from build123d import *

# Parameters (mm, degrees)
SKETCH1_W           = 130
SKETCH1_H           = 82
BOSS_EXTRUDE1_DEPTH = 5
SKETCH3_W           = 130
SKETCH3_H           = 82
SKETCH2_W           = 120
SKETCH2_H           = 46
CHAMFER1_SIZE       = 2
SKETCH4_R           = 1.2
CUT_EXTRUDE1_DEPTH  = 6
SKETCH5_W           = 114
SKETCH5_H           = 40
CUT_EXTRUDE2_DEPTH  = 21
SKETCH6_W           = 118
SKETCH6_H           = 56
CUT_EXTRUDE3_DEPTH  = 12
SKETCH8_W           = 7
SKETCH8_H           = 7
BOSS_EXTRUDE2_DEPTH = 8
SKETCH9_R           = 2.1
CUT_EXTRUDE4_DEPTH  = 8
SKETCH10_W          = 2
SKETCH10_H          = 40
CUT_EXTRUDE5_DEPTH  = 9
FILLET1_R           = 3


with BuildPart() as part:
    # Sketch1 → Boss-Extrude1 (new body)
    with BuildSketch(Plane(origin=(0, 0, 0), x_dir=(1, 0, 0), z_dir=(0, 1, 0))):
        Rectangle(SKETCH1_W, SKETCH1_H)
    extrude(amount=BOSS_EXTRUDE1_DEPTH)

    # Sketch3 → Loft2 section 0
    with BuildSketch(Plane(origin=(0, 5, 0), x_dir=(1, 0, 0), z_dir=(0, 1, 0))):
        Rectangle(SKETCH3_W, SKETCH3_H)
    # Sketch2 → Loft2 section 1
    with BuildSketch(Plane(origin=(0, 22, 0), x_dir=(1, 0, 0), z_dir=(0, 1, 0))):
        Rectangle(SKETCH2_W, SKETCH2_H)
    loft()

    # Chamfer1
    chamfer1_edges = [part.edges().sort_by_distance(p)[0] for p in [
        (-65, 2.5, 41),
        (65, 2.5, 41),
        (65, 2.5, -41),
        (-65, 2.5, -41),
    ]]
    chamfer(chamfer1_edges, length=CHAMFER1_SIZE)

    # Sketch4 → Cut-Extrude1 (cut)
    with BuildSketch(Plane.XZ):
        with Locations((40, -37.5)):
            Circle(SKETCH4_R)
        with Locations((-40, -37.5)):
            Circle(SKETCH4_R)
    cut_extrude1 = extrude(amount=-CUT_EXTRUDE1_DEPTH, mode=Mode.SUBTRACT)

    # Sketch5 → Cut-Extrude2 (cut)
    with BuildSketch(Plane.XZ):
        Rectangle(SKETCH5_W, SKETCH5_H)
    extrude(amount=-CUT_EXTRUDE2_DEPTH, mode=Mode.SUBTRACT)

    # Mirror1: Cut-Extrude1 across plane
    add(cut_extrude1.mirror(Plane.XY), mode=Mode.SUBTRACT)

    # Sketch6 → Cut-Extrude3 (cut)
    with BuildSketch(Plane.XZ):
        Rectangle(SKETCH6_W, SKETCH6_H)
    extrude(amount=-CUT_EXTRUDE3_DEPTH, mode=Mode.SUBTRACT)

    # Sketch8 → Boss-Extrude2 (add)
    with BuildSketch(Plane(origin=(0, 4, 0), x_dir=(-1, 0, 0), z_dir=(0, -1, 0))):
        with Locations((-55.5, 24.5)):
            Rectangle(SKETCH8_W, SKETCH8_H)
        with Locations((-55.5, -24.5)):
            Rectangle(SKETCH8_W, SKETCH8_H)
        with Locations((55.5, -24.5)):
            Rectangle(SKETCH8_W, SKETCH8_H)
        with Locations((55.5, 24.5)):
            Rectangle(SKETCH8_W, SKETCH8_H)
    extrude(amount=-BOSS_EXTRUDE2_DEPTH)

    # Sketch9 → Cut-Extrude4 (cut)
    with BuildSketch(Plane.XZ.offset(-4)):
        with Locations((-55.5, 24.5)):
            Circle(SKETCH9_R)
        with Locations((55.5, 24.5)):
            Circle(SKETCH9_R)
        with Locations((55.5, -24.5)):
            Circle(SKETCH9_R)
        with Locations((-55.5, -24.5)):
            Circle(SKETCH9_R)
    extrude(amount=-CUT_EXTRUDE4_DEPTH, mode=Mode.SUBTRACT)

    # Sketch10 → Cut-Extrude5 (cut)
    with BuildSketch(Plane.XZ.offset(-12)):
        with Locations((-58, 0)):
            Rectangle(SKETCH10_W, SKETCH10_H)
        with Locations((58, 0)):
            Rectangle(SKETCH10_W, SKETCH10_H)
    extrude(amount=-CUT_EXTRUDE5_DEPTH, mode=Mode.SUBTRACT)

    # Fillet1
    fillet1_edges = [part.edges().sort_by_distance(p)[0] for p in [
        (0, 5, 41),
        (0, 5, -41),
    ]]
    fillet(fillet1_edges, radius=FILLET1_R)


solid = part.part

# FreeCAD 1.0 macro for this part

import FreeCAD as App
import Part
import Sketcher
from FreeCAD import Vector


def edges_at(feature, points):
    """Names of the edges that pass closest to the given points."""
    edges = feature.Shape.Edges
    near = lambda p: min(range(len(edges)), key=lambda i: edges[i].distToShape(Part.Vertex(*p))[0])
    return sorted({f"Edge{near(p) + 1}" for p in points})

doc = App.newDocument("Part")
body = doc.addObject("PartDesign::Body", "Body")

sketch1 = body.newObject("Sketcher::SketchObject", "Sketch")
sketch1.AttachmentSupport = (doc.getObject("XZ_Plane"), [""])
sketch1.MapMode = "FlatFace"
sketch1.addGeometry([
    Part.LineSegment(Vector(-65, -41, 0), Vector(-65, 41, 0)),
    Part.LineSegment(Vector(-65, 41, 0), Vector(65, 41, 0)),
    Part.LineSegment(Vector(65, 41, 0), Vector(65, -41, 0)),
    Part.LineSegment(Vector(65, -41, 0), Vector(-65, -41, 0)),
], False)
sketch1.addConstraint([
    Sketcher.Constraint("Coincident", 0, 2, 1, 1),
    Sketcher.Constraint("Coincident", 1, 2, 2, 1),
    Sketcher.Constraint("Coincident", 2, 2, 3, 1),
    Sketcher.Constraint("Coincident", 3, 2, 0, 1),
    Sketcher.Constraint("Vertical", 0),
    Sketcher.Constraint("Horizontal", 1),
    Sketcher.Constraint("Vertical", 2),
    Sketcher.Constraint("Horizontal", 3),
    Sketcher.Constraint("Symmetric", 0, 2, 2, 2, -1, 1),
    Sketcher.Constraint("DistanceX", 1, 1, 1, 2, 130.0),
    Sketcher.Constraint("DistanceY", 0, 1, 0, 2, 82.0),
])
pad1 = body.newObject("PartDesign::Pad", "Pad")
pad1.Profile = sketch1
pad1.Length = 5
pad1.Reversed = True

sketch2 = body.newObject("Sketcher::SketchObject", "Sketch001")
sketch2.AttachmentSupport = (doc.getObject("XZ_Plane"), [""])
sketch2.MapMode = "FlatFace"
sketch2.AttachmentOffset = App.Placement(Vector(0, 0, -5), App.Rotation())
sketch2.addGeometry([
    Part.LineSegment(Vector(-65, -41, 0), Vector(-65, 41, 0)),
    Part.LineSegment(Vector(-65, 41, 0), Vector(65, 41, 0)),
    Part.LineSegment(Vector(65, 41, 0), Vector(65, -41, 0)),
    Part.LineSegment(Vector(65, -41, 0), Vector(-65, -41, 0)),
], False)
sketch2.addConstraint([
    Sketcher.Constraint("Coincident", 0, 2, 1, 1),
    Sketcher.Constraint("Coincident", 1, 2, 2, 1),
    Sketcher.Constraint("Coincident", 2, 2, 3, 1),
    Sketcher.Constraint("Coincident", 3, 2, 0, 1),
    Sketcher.Constraint("Vertical", 0),
    Sketcher.Constraint("Horizontal", 1),
    Sketcher.Constraint("Vertical", 2),
    Sketcher.Constraint("Horizontal", 3),
    Sketcher.Constraint("Symmetric", 0, 2, 2, 2, -1, 1),
    Sketcher.Constraint("DistanceX", 1, 1, 1, 2, 130.0),
    Sketcher.Constraint("DistanceY", 0, 1, 0, 2, 82.0),
])

sketch3 = body.newObject("Sketcher::SketchObject", "Sketch002")
sketch3.AttachmentSupport = (doc.getObject("XZ_Plane"), [""])
sketch3.MapMode = "FlatFace"
sketch3.AttachmentOffset = App.Placement(Vector(0, 0, -22), App.Rotation())
sketch3.addGeometry([
    Part.LineSegment(Vector(-60, -23, 0), Vector(-60, 23, 0)),
    Part.LineSegment(Vector(-60, 23, 0), Vector(60, 23, 0)),
    Part.LineSegment(Vector(60, 23, 0), Vector(60, -23, 0)),
    Part.LineSegment(Vector(60, -23, 0), Vector(-60, -23, 0)),
], False)
sketch3.addConstraint([
    Sketcher.Constraint("Coincident", 0, 2, 1, 1),
    Sketcher.Constraint("Coincident", 1, 2, 2, 1),
    Sketcher.Constraint("Coincident", 2, 2, 3, 1),
    Sketcher.Constraint("Coincident", 3, 2, 0, 1),
    Sketcher.Constraint("Vertical", 0),
    Sketcher.Constraint("Horizontal", 1),
    Sketcher.Constraint("Vertical", 2),
    Sketcher.Constraint("Horizontal", 3),
    Sketcher.Constraint("Symmetric", 0, 2, 2, 2, -1, 1),
    Sketcher.Constraint("DistanceX", 1, 1, 1, 2, 120.0),
    Sketcher.Constraint("DistanceY", 0, 1, 0, 2, 46.0),
])

additiveloft = body.newObject("PartDesign::AdditiveLoft", "AdditiveLoft")
additiveloft.Profile = sketch2
additiveloft.Sections = [sketch3]
doc.recompute()

chamfer = body.newObject("PartDesign::Chamfer", "Chamfer")
chamfer.Base = (additiveloft, edges_at(additiveloft, [
    (-65, 2.5, 41),
    (65, 2.5, 41),
    (65, 2.5, -41),
    (-65, 2.5, -41),
]))
chamfer.Size = 2

sketch4 = body.newObject("Sketcher::SketchObject", "Sketch003")
sketch4.AttachmentSupport = (doc.getObject("XZ_Plane"), [""])
sketch4.MapMode = "FlatFace"
sketch4.addGeometry([
    Part.Circle(Vector(40, -37.5, 0), Vector(0, 0, 1), 1.2),
    Part.Circle(Vector(-40, -37.5, 0), Vector(0, 0, 1), 1.2),
], False)
sketch4.addConstraint([
    Sketcher.Constraint("Equal", 0, 1),
    Sketcher.Constraint("Symmetric", 0, 3, 1, 3, -2),
    Sketcher.Constraint("Diameter", 0, 2.4),
    Sketcher.Constraint("DistanceX", -1, 1, 0, 3, 40.0),
    Sketcher.Constraint("DistanceY", 0, 3, -1, 1, 37.5),
])
pocket1 = body.newObject("PartDesign::Pocket", "Pocket")
pocket1.Profile = sketch4
pocket1.Length = 6

sketch5 = body.newObject("Sketcher::SketchObject", "Sketch004")
sketch5.AttachmentSupport = (doc.getObject("XZ_Plane"), [""])
sketch5.MapMode = "FlatFace"
sketch5.addGeometry([
    Part.LineSegment(Vector(-57, 20, 0), Vector(-57, -20, 0)),
    Part.LineSegment(Vector(-57, -20, 0), Vector(57, -20, 0)),
    Part.LineSegment(Vector(57, -20, 0), Vector(57, 20, 0)),
    Part.LineSegment(Vector(57, 20, 0), Vector(-57, 20, 0)),
], False)
sketch5.addConstraint([
    Sketcher.Constraint("Coincident", 0, 2, 1, 1),
    Sketcher.Constraint("Coincident", 1, 2, 2, 1),
    Sketcher.Constraint("Coincident", 2, 2, 3, 1),
    Sketcher.Constraint("Coincident", 3, 2, 0, 1),
    Sketcher.Constraint("Vertical", 0),
    Sketcher.Constraint("Horizontal", 1),
    Sketcher.Constraint("Vertical", 2),
    Sketcher.Constraint("Horizontal", 3),
    Sketcher.Constraint("Symmetric", 0, 2, 2, 2, -1, 1),
    Sketcher.Constraint("DistanceX", 1, 1, 1, 2, 114.0),
    Sketcher.Constraint("DistanceY", 0, 2, 0, 1, 40.0),
])
pocket2 = body.newObject("PartDesign::Pocket", "Pocket001")
pocket2.Profile = sketch5
pocket2.Length = 21
doc.recompute()

mirrored = body.newObject("PartDesign::Mirrored", "Mirrored")
mirrored.Originals = [pocket1]
mirrored.MirrorPlane = (doc.getObject("XY_Plane"), [""])
body.Tip = mirrored

sketch6 = body.newObject("Sketcher::SketchObject", "Sketch005")
sketch6.AttachmentSupport = (doc.getObject("XZ_Plane"), [""])
sketch6.MapMode = "FlatFace"
sketch6.addGeometry([
    Part.LineSegment(Vector(-59, 28, 0), Vector(-59, -28, 0)),
    Part.LineSegment(Vector(-59, -28, 0), Vector(59, -28, 0)),
    Part.LineSegment(Vector(59, -28, 0), Vector(59, 28, 0)),
    Part.LineSegment(Vector(59, 28, 0), Vector(-59, 28, 0)),
], False)
sketch6.addConstraint([
    Sketcher.Constraint("Coincident", 0, 2, 1, 1),
    Sketcher.Constraint("Coincident", 1, 2, 2, 1),
    Sketcher.Constraint("Coincident", 2, 2, 3, 1),
    Sketcher.Constraint("Coincident", 3, 2, 0, 1),
    Sketcher.Constraint("Vertical", 0),
    Sketcher.Constraint("Horizontal", 1),
    Sketcher.Constraint("Vertical", 2),
    Sketcher.Constraint("Horizontal", 3),
    Sketcher.Constraint("Symmetric", 0, 2, 2, 2, -1, 1),
    Sketcher.Constraint("DistanceX", 1, 1, 1, 2, 118.0),
    Sketcher.Constraint("DistanceY", 0, 2, 0, 1, 56.0),
])
pocket3 = body.newObject("PartDesign::Pocket", "Pocket002")
pocket3.Profile = sketch6
pocket3.Length = 12

sketch7 = body.newObject("Sketcher::SketchObject", "Sketch006")
sketch7.AttachmentSupport = (doc.getObject("XZ_Plane"), [""])
sketch7.MapMode = "FlatFace"
sketch7.AttachmentOffset = App.Placement(Vector(0, 0, -4), App.Rotation())
sketch7.addGeometry([
    Part.LineSegment(Vector(59, -28, 0), Vector(59, -21, 0)),
    Part.LineSegment(Vector(59, -21, 0), Vector(52, -21, 0)),
    Part.LineSegment(Vector(52, -21, 0), Vector(52, -28, 0)),
    Part.LineSegment(Vector(52, -28, 0), Vector(59, -28, 0)),
    Part.LineSegment(Vector(59, 21, 0), Vector(59, 28, 0)),
    Part.LineSegment(Vector(59, 28, 0), Vector(52, 28, 0)),
    Part.LineSegment(Vector(52, 28, 0), Vector(52, 21, 0)),
    Part.LineSegment(Vector(52, 21, 0), Vector(59, 21, 0)),
    Part.LineSegment(Vector(-52, 21, 0), Vector(-52, 28, 0)),
    Part.LineSegment(Vector(-52, 28, 0), Vector(-59, 28, 0)),
    Part.LineSegment(Vector(-59, 28, 0), Vector(-59, 21, 0)),
    Part.LineSegment(Vector(-59, 21, 0), Vector(-52, 21, 0)),
    Part.LineSegment(Vector(-52, -28, 0), Vector(-52, -21, 0)),
    Part.LineSegment(Vector(-52, -21, 0), Vector(-59, -21, 0)),
    Part.LineSegment(Vector(-59, -21, 0), Vector(-59, -28, 0)),
    Part.LineSegment(Vector(-59, -28, 0), Vector(-52, -28, 0)),
], False)
sketch7.addConstraint([
    Sketcher.Constraint("Coincident", 0, 2, 1, 1),
    Sketcher.Constraint("Coincident", 1, 2, 2, 1),
    Sketcher.Constraint("Coincident", 2, 2, 3, 1),
    Sketcher.Constraint("Coincident", 3, 2, 0, 1),
    Sketcher.Constraint("Coincident", 4, 2, 5, 1),
    Sketcher.Constraint("Coincident", 5, 2, 6, 1),
    Sketcher.Constraint("Coincident", 6, 2, 7, 1),
    Sketcher.Constraint("Coincident", 7, 2, 4, 1),
    Sketcher.Constraint("Coincident", 8, 2, 9, 1),
    Sketcher.Constraint("Coincident", 9, 2, 10, 1),
    Sketcher.Constraint("Coincident", 10, 2, 11, 1),
    Sketcher.Constraint("Coincident", 11, 2, 8, 1),
    Sketcher.Constraint("Coincident", 12, 2, 13, 1),
    Sketcher.Constraint("Coincident", 13, 2, 14, 1),
    Sketcher.Constraint("Coincident", 14, 2, 15, 1),
    Sketcher.Constraint("Coincident", 15, 2, 12, 1),
    Sketcher.Constraint("Vertical", 0),
    Sketcher.Constraint("Horizontal", 1),
    Sketcher.Constraint("Vertical", 2),
    Sketcher.Constraint("Horizontal", 3),
    Sketcher.Constraint("Vertical", 4),
    Sketcher.Constraint("Horizontal", 5),
    Sketcher.Constraint("Vertical", 6),
    Sketcher.Constraint("Horizontal", 7),
    Sketcher.Constraint("Vertical", 8),
    Sketcher.Constraint("Horizontal", 9),
    Sketcher.Constraint("Vertical", 10),
    Sketcher.Constraint("Horizontal", 11),
    Sketcher.Constraint("Vertical", 12),
    Sketcher.Constraint("Horizontal", 13),
    Sketcher.Constraint("Vertical", 14),
    Sketcher.Constraint("Horizontal", 15),
    Sketcher.Constraint("Symmetric", 2, 2, 8, 2, -1, 1),
    Sketcher.Constraint("Symmetric", 0, 2, 10, 2, -1, 1),
    Sketcher.Constraint("Symmetric", 6, 2, 12, 2, -1, 1),
    Sketcher.Constraint("Symmetric", 4, 2, 14, 2, -1, 1),
    Sketcher.Constraint("Symmetric", 5, 2, 8, 2, -2),
    Sketcher.Constraint("Symmetric", 7, 2, 10, 2, -2),
    Sketcher.Constraint("Equal", 15, 0),
    Sketcher.Constraint("DistanceX", 1, 2, 1, 1, 7.0),
    Sketcher.Constraint("DistanceX", -1, 1, 0, 2, 59.0),
    Sketcher.Constraint("DistanceY", 0, 2, -1, 1, 21.0),
])
pad2 = body.newObject("PartDesign::Pad", "Pad001")
pad2.Profile = sketch7
pad2.Length = 8
pad2.Reversed = True

sketch8 = body.newObject("Sketcher::SketchObject", "Sketch007")
sketch8.AttachmentSupport = (doc.getObject("XZ_Plane"), [""])
sketch8.MapMode = "FlatFace"
sketch8.AttachmentOffset = App.Placement(Vector(0, 0, -4), App.Rotation())
sketch8.addGeometry([
    Part.Circle(Vector(-55.5, 24.5, 0), Vector(0, 0, 1), 2.1),
    Part.Circle(Vector(55.5, 24.5, 0), Vector(0, 0, 1), 2.1),
    Part.Circle(Vector(55.5, -24.5, 0), Vector(0, 0, 1), 2.1),
    Part.Circle(Vector(-55.5, -24.5, 0), Vector(0, 0, 1), 2.1),
], False)
sketch8.addConstraint([
    Sketcher.Constraint("Equal", 0, 1),
    Sketcher.Constraint("Equal", 1, 2),
    Sketcher.Constraint("Equal", 2, 3),
    Sketcher.Constraint("Symmetric", 0, 3, 2, 3, -1, 1),
    Sketcher.Constraint("Symmetric", 1, 3, 3, 3, -1, 1),
    Sketcher.Constraint("Symmetric", 0, 3, 1, 3, -2),
    Sketcher.Constraint("Diameter", 0, 4.2),
    Sketcher.Constraint("DistanceX", 0, 3, 1, 3, 111.0),
    Sketcher.Constraint("DistanceY", 2, 3, 1, 3, 49.0),
])
pocket4 = body.newObject("PartDesign::Pocket", "Pocket003")
pocket4.Profile = sketch8
pocket4.Length = 8

sketch9 = body.newObject("Sketcher::SketchObject", "Sketch008")
sketch9.AttachmentSupport = (doc.getObject("XZ_Plane"), [""])
sketch9.MapMode = "FlatFace"
sketch9.AttachmentOffset = App.Placement(Vector(0, 0, -12), App.Rotation())
sketch9.addGeometry([
    Part.LineSegment(Vector(-59, 20, 0), Vector(-59, -20, 0)),
    Part.LineSegment(Vector(-59, -20, 0), Vector(-57, -20, 0)),
    Part.LineSegment(Vector(-57, -20, 0), Vector(-57, 20, 0)),
    Part.LineSegment(Vector(-57, 20, 0), Vector(-59, 20, 0)),
    Part.LineSegment(Vector(57, 20, 0), Vector(57, -20, 0)),
    Part.LineSegment(Vector(57, -20, 0), Vector(59, -20, 0)),
    Part.LineSegment(Vector(59, -20, 0), Vector(59, 20, 0)),
    Part.LineSegment(Vector(59, 20, 0), Vector(57, 20, 0)),
], False)
sketch9.addConstraint([
    Sketcher.Constraint("Coincident", 0, 2, 1, 1),
    Sketcher.Constraint("Coincident", 1, 2, 2, 1),
    Sketcher.Constraint("Coincident", 2, 2, 3, 1),
    Sketcher.Constraint("Coincident", 3, 2, 0, 1),
    Sketcher.Constraint("Coincident", 4, 2, 5, 1),
    Sketcher.Constraint("Coincident", 5, 2, 6, 1),
    Sketcher.Constraint("Coincident", 6, 2, 7, 1),
    Sketcher.Constraint("Coincident", 7, 2, 4, 1),
    Sketcher.Constraint("Vertical", 0),
    Sketcher.Constraint("Horizontal", 1),
    Sketcher.Constraint("Vertical", 2),
    Sketcher.Constraint("Horizontal", 3),
    Sketcher.Constraint("Vertical", 4),
    Sketcher.Constraint("Horizontal", 5),
    Sketcher.Constraint("Vertical", 6),
    Sketcher.Constraint("Horizontal", 7),
    Sketcher.Constraint("Symmetric", 2, 2, 4, 2, -1, 1),
    Sketcher.Constraint("Symmetric", 0, 2, 6, 2, -1, 1),
    Sketcher.Constraint("Horizontal", 1, 2, 4, 2),
    Sketcher.Constraint("DistanceX", 1, 1, 1, 2, 2.0),
    Sketcher.Constraint("DistanceY", 0, 2, 0, 1, 40.0),
    Sketcher.Constraint("DistanceX", 0, 2, -1, 1, 59.0),
])
pocket5 = body.newObject("PartDesign::Pocket", "Pocket004")
pocket5.Profile = sketch9
pocket5.Length = 9
doc.recompute()

fillet = body.newObject("PartDesign::Fillet", "Fillet")
fillet.Base = (pocket5, edges_at(pocket5, [(0, 5, 41), (0, 5, -41)]))
fillet.Radius = 3

doc.recompute()
